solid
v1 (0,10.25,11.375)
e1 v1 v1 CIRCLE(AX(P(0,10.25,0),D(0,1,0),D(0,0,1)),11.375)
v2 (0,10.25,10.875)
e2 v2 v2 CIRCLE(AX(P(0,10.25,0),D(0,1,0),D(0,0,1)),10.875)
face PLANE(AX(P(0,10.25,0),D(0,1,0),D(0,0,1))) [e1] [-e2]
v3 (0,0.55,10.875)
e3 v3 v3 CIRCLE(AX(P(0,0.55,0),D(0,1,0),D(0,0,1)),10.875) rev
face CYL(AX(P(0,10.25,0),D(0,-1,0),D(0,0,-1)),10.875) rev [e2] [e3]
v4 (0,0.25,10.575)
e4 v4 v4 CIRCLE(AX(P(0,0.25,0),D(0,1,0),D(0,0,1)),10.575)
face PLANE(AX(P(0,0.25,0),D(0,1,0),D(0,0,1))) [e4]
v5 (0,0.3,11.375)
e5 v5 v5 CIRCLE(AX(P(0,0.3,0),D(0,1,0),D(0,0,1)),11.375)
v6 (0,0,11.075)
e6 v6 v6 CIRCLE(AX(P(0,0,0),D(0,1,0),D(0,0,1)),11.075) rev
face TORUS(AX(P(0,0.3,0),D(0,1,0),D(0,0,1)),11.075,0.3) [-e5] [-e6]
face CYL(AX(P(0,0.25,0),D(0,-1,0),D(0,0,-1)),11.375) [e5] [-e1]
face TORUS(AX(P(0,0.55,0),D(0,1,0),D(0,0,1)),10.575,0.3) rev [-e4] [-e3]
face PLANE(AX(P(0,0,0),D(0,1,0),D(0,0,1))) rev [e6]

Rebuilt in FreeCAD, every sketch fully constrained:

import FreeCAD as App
import Part
import Sketcher

V = App.Vector
Q = App.Units.Quantity


def edges_at(feature, points):
    """Names of the edges that pass closest to the given points."""
    edges = feature.Shape.Edges
    near = lambda p: min(range(len(edges)), key=lambda i: edges[i].distToShape(Part.Vertex(*p))[0])
    return sorted({f"Edge{near(p) + 1}" for p in points})

doc = App.newDocument("Part")
body = doc.addObject("PartDesign::Body", "Body")

# Sketch on XZ plane
sketch1 = body.newObject("Sketcher::SketchObject", "Sketch")
sketch1.AttachmentSupport = (doc.getObject("XZ_Plane"), [""])
sketch1.MapMode = "FlatFace"
sketch1.addGeometry(Part.Circle(V(0, 0, 0), V(0, 0, 1), 11.375), False)
sketch1.addConstraint([
    Sketcher.Constraint("Coincident", 0, 3, -1, 1),
    Sketcher.Constraint("Diameter", 0, Q("22.75 mm")),
])
pad1 = body.newObject("PartDesign::Pad", "Pad")
pad1.Profile = sketch1
pad1.Length = 0.25
pad1.Reversed = True

# Sketch on XZ plane
sketch2 = body.newObject("Sketcher::SketchObject", "Sketch001")
sketch2.AttachmentSupport = (doc.getObject("XZ_Plane"), [""])
sketch2.MapMode = "FlatFace"
sketch2.AttachmentOffset = App.Placement(V(0, 0, -0.25), App.Rotation())
sketch2.addGeometry([
    Part.Circle(V(0, 0, 0), V(0, 0, 1), 11.375),
    Part.Circle(V(0, 0, 0), V(0, 0, 1), 10.875),
], False)
sketch2.addConstraint([
    Sketcher.Constraint("Coincident", 0, 3, -1, 1),
    Sketcher.Constraint("Coincident", 1, 3, -1, 1),
    Sketcher.Constraint("Diameter", 0, Q("22.75 mm")),
    Sketcher.Constraint("Diameter", 1, Q("21.75 mm")),
])
pad2 = body.newObject("PartDesign::Pad", "Pad001")
pad2.Profile = sketch2
pad2.Length = 10
pad2.Reversed = True
doc.recompute()

fillet = body.newObject("PartDesign::Fillet", "Fillet")
fillet.Base = (pad2, edges_at(pad2, [(0, 0.25, -10.875)]))
fillet.Radius = 0.3
doc.recompute()

fillet2 = body.newObject("PartDesign::Fillet", "Fillet001")
fillet2.Base = (fillet, edges_at(fillet, [(0, 0, -11.375)]))
fillet2.Radius = 0.3

doc.recompute()
